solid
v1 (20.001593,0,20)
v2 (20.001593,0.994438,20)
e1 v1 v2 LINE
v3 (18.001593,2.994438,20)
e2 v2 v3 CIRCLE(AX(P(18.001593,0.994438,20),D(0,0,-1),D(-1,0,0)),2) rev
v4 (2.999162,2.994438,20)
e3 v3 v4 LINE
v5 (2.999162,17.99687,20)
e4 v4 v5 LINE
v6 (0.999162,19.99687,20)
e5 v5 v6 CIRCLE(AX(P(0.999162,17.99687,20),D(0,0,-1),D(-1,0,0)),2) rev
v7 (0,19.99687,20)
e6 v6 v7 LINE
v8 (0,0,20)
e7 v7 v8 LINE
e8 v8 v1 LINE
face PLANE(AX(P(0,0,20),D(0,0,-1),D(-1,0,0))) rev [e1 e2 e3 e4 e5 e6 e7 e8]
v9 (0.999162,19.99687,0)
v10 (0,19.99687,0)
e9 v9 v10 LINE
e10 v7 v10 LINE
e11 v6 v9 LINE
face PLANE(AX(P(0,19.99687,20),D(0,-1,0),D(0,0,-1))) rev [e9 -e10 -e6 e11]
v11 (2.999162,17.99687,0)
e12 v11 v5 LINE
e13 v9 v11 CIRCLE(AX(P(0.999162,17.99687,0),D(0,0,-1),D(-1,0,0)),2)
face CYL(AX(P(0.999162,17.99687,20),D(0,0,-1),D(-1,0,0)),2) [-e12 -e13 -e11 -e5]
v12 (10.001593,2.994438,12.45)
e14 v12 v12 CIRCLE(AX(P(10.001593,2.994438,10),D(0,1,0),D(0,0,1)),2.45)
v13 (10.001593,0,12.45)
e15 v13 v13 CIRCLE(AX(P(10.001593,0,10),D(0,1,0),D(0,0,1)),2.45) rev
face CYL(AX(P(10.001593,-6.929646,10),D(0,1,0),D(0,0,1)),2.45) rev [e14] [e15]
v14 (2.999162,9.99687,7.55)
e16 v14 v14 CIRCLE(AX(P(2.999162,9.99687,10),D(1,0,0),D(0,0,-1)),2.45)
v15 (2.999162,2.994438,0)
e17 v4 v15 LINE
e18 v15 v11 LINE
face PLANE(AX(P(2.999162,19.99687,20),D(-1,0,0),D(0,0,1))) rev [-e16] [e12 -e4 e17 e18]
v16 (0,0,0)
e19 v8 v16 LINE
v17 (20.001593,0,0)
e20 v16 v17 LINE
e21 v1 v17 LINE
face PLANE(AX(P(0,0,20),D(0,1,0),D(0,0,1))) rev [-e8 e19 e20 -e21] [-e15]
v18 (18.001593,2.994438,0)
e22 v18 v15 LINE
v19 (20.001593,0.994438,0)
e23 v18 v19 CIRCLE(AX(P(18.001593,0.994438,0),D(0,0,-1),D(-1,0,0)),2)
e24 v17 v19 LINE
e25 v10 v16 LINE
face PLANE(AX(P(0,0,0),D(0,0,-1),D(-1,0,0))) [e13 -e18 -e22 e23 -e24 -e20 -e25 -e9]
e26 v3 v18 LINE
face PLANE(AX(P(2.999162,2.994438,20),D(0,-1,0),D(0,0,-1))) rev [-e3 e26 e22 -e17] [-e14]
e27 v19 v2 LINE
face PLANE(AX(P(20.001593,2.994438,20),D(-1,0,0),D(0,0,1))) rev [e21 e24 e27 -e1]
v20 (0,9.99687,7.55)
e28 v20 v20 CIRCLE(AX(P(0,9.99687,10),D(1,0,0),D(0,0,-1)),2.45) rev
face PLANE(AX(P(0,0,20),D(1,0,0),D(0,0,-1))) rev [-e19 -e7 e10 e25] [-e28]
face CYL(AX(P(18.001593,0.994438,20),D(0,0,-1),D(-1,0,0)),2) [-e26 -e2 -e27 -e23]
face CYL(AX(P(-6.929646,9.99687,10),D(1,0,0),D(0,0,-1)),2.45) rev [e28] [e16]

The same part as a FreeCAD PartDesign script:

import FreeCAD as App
import Part
import Sketcher
from FreeCAD import Vector
Q = App.Units.Quantity


def edges_at(feature, points):
    """Names of the edges that pass closest to the given points."""
    edges = feature.Shape.Edges
    near = lambda p: min(range(len(edges)), key=lambda i: edges[i].distToShape(Part.Vertex(*p))[0])
    return sorted({f"Edge{near(p) + 1}" for p in points})

doc = App.newDocument("Part")
body = doc.addObject("PartDesign::Body", "Body")

# Sketch on XY plane
sketch1 = doc.addObject("Sketcher::SketchObject", "Sketch")
body.addObject(sketch1)
sketch1.AttachmentSupport = (doc.XY_Plane, [""])
sketch1.MapMode = "FlatFace"
sketch1.addGeometry(Part.LineSegment(Vector(0, 0, 0), Vector(20.001593, 0, 0)), False)
sketch1.addGeometry(Part.LineSegment(Vector(20.001593, 0, 0), Vector(20.001593, 2.994438, 0)), False)
sketch1.addGeometry(Part.LineSegment(Vector(20.001593, 2.994438, 0), Vector(2.999162, 2.994438, 0)), False)
sketch1.addGeometry(Part.LineSegment(Vector(2.999162, 2.994438, 0), Vector(2.999162, 19.99687, 0)), False)
sketch1.addGeometry(Part.LineSegment(Vector(2.999162, 19.99687, 0), Vector(0, 19.99687, 0)), False)
sketch1.addGeometry(Part.LineSegment(Vector(0, 19.99687, 0), Vector(0, 0, 0)), False)
sketch1.addConstraint(Sketcher.Constraint("Coincident", 0, 2, 1, 1))
sketch1.addConstraint(Sketcher.Constraint("Coincident", 1, 2, 2, 1))
sketch1.addConstraint(Sketcher.Constraint("Coincident", 2, 2, 3, 1))
sketch1.addConstraint(Sketcher.Constraint("Coincident", 3, 2, 4, 1))
sketch1.addConstraint(Sketcher.Constraint("Coincident", 4, 2, 5, 1))
sketch1.addConstraint(Sketcher.Constraint("Coincident", 5, 2, 0, 1))
sketch1.addConstraint(Sketcher.Constraint("Horizontal", 0))
sketch1.addConstraint(Sketcher.Constraint("Vertical", 1))
sketch1.addConstraint(Sketcher.Constraint("Horizontal", 2))
sketch1.addConstraint(Sketcher.Constraint("Vertical", 3))
sketch1.addConstraint(Sketcher.Constraint("Horizontal", 4))
sketch1.addConstraint(Sketcher.Constraint("Vertical", 5))
sketch1.addConstraint(Sketcher.Constraint("Coincident", 5, 2, -1, 1))
sketch1.addConstraint(Sketcher.Constraint("Equal", 2, 3))
sketch1.addConstraint(Sketcher.Constraint("DistanceX", 2, 2, 2, 1, Q("17.002432 mm")))
sketch1.addConstraint(Sketcher.Constraint("DistanceX", 4, 2, 4, 1, Q("2.999162 mm")))
sketch1.addConstraint(Sketcher.Constraint("DistanceY", 1, 1, 1, 2, Q("2.994438 mm")))
pad1 = doc.addObject("PartDesign::Pad", "Pad")
body.addObject(pad1)
pad1.Profile = sketch1
pad1.Length = 20

# Sketch on YZ plane
sketch2 = doc.addObject("Sketcher::SketchObject", "Sketch001")
body.addObject(sketch2)
sketch2.AttachmentSupport = (doc.YZ_Plane, [""])
sketch2.MapMode = "FlatFace"
sketch2.AttachmentOffset = App.Placement(Vector(0, 0, 2.999162), App.Rotation())
sketch2.addGeometry(Part.Circle(Vector(9.99687, 10, 0), Vector(0, 0, 1), 2.45), False)
sketch2.addConstraint(Sketcher.Constraint("Diameter", 0, Q("4.9 mm")))
sketch2.addConstraint(Sketcher.Constraint("DistanceY", -1, 1, 0, 3, Q("10 mm")))
sketch2.addConstraint(Sketcher.Constraint("DistanceX", -1, 1, 0, 3, Q("9.99687 mm")))
pocket1 = doc.addObject("PartDesign::Pocket", "Pocket")
body.addObject(pocket1)
pocket1.Profile = sketch2
pocket1.Length = 2.999162

# Sketch on XZ plane
sketch3 = doc.addObject("Sketcher::SketchObject", "Sketch002")
body.addObject(sketch3)
sketch3.AttachmentSupport = (doc.XZ_Plane, [""])
sketch3.MapMode = "FlatFace"
sketch3.AttachmentOffset = App.Placement(Vector(0, 0, -2.994438), App.Rotation())
sketch3.addGeometry(Part.Circle(Vector(10.001593, 10, 0), Vector(0, 0, 1), 2.45), False)
sketch3.addConstraint(Sketcher.Constraint("Diameter", 0, Q("4.9 mm")))
sketch3.addConstraint(Sketcher.Constraint("DistanceY", -1, 1, 0, 3, Q("10 mm")))
sketch3.addConstraint(Sketcher.Constraint("DistanceX", -1, 1, 0, 3, Q("10.001593 mm")))
pocket2 = doc.addObject("PartDesign::Pocket", "Pocket001")
body.addObject(pocket2)
pocket2.Profile = sketch3
pocket2.Length = 2.994438
pocket2.Reversed = True
doc.recompute()

fillet = doc.addObject("PartDesign::Fillet", "Fillet")
body.addObject(fillet)
fillet.Base = (pocket2, edges_at(pocket2, [(2.999, 19.997, 10)]))
fillet.Radius = 2
doc.recompute()

fillet2 = doc.addObject("PartDesign::Fillet", "Fillet001")
body.addObject(fillet2)
fillet2.Base = (fillet, edges_at(fillet, [(20.002, 2.994, 10)]))
fillet2.Radius = 2

doc.recompute()
